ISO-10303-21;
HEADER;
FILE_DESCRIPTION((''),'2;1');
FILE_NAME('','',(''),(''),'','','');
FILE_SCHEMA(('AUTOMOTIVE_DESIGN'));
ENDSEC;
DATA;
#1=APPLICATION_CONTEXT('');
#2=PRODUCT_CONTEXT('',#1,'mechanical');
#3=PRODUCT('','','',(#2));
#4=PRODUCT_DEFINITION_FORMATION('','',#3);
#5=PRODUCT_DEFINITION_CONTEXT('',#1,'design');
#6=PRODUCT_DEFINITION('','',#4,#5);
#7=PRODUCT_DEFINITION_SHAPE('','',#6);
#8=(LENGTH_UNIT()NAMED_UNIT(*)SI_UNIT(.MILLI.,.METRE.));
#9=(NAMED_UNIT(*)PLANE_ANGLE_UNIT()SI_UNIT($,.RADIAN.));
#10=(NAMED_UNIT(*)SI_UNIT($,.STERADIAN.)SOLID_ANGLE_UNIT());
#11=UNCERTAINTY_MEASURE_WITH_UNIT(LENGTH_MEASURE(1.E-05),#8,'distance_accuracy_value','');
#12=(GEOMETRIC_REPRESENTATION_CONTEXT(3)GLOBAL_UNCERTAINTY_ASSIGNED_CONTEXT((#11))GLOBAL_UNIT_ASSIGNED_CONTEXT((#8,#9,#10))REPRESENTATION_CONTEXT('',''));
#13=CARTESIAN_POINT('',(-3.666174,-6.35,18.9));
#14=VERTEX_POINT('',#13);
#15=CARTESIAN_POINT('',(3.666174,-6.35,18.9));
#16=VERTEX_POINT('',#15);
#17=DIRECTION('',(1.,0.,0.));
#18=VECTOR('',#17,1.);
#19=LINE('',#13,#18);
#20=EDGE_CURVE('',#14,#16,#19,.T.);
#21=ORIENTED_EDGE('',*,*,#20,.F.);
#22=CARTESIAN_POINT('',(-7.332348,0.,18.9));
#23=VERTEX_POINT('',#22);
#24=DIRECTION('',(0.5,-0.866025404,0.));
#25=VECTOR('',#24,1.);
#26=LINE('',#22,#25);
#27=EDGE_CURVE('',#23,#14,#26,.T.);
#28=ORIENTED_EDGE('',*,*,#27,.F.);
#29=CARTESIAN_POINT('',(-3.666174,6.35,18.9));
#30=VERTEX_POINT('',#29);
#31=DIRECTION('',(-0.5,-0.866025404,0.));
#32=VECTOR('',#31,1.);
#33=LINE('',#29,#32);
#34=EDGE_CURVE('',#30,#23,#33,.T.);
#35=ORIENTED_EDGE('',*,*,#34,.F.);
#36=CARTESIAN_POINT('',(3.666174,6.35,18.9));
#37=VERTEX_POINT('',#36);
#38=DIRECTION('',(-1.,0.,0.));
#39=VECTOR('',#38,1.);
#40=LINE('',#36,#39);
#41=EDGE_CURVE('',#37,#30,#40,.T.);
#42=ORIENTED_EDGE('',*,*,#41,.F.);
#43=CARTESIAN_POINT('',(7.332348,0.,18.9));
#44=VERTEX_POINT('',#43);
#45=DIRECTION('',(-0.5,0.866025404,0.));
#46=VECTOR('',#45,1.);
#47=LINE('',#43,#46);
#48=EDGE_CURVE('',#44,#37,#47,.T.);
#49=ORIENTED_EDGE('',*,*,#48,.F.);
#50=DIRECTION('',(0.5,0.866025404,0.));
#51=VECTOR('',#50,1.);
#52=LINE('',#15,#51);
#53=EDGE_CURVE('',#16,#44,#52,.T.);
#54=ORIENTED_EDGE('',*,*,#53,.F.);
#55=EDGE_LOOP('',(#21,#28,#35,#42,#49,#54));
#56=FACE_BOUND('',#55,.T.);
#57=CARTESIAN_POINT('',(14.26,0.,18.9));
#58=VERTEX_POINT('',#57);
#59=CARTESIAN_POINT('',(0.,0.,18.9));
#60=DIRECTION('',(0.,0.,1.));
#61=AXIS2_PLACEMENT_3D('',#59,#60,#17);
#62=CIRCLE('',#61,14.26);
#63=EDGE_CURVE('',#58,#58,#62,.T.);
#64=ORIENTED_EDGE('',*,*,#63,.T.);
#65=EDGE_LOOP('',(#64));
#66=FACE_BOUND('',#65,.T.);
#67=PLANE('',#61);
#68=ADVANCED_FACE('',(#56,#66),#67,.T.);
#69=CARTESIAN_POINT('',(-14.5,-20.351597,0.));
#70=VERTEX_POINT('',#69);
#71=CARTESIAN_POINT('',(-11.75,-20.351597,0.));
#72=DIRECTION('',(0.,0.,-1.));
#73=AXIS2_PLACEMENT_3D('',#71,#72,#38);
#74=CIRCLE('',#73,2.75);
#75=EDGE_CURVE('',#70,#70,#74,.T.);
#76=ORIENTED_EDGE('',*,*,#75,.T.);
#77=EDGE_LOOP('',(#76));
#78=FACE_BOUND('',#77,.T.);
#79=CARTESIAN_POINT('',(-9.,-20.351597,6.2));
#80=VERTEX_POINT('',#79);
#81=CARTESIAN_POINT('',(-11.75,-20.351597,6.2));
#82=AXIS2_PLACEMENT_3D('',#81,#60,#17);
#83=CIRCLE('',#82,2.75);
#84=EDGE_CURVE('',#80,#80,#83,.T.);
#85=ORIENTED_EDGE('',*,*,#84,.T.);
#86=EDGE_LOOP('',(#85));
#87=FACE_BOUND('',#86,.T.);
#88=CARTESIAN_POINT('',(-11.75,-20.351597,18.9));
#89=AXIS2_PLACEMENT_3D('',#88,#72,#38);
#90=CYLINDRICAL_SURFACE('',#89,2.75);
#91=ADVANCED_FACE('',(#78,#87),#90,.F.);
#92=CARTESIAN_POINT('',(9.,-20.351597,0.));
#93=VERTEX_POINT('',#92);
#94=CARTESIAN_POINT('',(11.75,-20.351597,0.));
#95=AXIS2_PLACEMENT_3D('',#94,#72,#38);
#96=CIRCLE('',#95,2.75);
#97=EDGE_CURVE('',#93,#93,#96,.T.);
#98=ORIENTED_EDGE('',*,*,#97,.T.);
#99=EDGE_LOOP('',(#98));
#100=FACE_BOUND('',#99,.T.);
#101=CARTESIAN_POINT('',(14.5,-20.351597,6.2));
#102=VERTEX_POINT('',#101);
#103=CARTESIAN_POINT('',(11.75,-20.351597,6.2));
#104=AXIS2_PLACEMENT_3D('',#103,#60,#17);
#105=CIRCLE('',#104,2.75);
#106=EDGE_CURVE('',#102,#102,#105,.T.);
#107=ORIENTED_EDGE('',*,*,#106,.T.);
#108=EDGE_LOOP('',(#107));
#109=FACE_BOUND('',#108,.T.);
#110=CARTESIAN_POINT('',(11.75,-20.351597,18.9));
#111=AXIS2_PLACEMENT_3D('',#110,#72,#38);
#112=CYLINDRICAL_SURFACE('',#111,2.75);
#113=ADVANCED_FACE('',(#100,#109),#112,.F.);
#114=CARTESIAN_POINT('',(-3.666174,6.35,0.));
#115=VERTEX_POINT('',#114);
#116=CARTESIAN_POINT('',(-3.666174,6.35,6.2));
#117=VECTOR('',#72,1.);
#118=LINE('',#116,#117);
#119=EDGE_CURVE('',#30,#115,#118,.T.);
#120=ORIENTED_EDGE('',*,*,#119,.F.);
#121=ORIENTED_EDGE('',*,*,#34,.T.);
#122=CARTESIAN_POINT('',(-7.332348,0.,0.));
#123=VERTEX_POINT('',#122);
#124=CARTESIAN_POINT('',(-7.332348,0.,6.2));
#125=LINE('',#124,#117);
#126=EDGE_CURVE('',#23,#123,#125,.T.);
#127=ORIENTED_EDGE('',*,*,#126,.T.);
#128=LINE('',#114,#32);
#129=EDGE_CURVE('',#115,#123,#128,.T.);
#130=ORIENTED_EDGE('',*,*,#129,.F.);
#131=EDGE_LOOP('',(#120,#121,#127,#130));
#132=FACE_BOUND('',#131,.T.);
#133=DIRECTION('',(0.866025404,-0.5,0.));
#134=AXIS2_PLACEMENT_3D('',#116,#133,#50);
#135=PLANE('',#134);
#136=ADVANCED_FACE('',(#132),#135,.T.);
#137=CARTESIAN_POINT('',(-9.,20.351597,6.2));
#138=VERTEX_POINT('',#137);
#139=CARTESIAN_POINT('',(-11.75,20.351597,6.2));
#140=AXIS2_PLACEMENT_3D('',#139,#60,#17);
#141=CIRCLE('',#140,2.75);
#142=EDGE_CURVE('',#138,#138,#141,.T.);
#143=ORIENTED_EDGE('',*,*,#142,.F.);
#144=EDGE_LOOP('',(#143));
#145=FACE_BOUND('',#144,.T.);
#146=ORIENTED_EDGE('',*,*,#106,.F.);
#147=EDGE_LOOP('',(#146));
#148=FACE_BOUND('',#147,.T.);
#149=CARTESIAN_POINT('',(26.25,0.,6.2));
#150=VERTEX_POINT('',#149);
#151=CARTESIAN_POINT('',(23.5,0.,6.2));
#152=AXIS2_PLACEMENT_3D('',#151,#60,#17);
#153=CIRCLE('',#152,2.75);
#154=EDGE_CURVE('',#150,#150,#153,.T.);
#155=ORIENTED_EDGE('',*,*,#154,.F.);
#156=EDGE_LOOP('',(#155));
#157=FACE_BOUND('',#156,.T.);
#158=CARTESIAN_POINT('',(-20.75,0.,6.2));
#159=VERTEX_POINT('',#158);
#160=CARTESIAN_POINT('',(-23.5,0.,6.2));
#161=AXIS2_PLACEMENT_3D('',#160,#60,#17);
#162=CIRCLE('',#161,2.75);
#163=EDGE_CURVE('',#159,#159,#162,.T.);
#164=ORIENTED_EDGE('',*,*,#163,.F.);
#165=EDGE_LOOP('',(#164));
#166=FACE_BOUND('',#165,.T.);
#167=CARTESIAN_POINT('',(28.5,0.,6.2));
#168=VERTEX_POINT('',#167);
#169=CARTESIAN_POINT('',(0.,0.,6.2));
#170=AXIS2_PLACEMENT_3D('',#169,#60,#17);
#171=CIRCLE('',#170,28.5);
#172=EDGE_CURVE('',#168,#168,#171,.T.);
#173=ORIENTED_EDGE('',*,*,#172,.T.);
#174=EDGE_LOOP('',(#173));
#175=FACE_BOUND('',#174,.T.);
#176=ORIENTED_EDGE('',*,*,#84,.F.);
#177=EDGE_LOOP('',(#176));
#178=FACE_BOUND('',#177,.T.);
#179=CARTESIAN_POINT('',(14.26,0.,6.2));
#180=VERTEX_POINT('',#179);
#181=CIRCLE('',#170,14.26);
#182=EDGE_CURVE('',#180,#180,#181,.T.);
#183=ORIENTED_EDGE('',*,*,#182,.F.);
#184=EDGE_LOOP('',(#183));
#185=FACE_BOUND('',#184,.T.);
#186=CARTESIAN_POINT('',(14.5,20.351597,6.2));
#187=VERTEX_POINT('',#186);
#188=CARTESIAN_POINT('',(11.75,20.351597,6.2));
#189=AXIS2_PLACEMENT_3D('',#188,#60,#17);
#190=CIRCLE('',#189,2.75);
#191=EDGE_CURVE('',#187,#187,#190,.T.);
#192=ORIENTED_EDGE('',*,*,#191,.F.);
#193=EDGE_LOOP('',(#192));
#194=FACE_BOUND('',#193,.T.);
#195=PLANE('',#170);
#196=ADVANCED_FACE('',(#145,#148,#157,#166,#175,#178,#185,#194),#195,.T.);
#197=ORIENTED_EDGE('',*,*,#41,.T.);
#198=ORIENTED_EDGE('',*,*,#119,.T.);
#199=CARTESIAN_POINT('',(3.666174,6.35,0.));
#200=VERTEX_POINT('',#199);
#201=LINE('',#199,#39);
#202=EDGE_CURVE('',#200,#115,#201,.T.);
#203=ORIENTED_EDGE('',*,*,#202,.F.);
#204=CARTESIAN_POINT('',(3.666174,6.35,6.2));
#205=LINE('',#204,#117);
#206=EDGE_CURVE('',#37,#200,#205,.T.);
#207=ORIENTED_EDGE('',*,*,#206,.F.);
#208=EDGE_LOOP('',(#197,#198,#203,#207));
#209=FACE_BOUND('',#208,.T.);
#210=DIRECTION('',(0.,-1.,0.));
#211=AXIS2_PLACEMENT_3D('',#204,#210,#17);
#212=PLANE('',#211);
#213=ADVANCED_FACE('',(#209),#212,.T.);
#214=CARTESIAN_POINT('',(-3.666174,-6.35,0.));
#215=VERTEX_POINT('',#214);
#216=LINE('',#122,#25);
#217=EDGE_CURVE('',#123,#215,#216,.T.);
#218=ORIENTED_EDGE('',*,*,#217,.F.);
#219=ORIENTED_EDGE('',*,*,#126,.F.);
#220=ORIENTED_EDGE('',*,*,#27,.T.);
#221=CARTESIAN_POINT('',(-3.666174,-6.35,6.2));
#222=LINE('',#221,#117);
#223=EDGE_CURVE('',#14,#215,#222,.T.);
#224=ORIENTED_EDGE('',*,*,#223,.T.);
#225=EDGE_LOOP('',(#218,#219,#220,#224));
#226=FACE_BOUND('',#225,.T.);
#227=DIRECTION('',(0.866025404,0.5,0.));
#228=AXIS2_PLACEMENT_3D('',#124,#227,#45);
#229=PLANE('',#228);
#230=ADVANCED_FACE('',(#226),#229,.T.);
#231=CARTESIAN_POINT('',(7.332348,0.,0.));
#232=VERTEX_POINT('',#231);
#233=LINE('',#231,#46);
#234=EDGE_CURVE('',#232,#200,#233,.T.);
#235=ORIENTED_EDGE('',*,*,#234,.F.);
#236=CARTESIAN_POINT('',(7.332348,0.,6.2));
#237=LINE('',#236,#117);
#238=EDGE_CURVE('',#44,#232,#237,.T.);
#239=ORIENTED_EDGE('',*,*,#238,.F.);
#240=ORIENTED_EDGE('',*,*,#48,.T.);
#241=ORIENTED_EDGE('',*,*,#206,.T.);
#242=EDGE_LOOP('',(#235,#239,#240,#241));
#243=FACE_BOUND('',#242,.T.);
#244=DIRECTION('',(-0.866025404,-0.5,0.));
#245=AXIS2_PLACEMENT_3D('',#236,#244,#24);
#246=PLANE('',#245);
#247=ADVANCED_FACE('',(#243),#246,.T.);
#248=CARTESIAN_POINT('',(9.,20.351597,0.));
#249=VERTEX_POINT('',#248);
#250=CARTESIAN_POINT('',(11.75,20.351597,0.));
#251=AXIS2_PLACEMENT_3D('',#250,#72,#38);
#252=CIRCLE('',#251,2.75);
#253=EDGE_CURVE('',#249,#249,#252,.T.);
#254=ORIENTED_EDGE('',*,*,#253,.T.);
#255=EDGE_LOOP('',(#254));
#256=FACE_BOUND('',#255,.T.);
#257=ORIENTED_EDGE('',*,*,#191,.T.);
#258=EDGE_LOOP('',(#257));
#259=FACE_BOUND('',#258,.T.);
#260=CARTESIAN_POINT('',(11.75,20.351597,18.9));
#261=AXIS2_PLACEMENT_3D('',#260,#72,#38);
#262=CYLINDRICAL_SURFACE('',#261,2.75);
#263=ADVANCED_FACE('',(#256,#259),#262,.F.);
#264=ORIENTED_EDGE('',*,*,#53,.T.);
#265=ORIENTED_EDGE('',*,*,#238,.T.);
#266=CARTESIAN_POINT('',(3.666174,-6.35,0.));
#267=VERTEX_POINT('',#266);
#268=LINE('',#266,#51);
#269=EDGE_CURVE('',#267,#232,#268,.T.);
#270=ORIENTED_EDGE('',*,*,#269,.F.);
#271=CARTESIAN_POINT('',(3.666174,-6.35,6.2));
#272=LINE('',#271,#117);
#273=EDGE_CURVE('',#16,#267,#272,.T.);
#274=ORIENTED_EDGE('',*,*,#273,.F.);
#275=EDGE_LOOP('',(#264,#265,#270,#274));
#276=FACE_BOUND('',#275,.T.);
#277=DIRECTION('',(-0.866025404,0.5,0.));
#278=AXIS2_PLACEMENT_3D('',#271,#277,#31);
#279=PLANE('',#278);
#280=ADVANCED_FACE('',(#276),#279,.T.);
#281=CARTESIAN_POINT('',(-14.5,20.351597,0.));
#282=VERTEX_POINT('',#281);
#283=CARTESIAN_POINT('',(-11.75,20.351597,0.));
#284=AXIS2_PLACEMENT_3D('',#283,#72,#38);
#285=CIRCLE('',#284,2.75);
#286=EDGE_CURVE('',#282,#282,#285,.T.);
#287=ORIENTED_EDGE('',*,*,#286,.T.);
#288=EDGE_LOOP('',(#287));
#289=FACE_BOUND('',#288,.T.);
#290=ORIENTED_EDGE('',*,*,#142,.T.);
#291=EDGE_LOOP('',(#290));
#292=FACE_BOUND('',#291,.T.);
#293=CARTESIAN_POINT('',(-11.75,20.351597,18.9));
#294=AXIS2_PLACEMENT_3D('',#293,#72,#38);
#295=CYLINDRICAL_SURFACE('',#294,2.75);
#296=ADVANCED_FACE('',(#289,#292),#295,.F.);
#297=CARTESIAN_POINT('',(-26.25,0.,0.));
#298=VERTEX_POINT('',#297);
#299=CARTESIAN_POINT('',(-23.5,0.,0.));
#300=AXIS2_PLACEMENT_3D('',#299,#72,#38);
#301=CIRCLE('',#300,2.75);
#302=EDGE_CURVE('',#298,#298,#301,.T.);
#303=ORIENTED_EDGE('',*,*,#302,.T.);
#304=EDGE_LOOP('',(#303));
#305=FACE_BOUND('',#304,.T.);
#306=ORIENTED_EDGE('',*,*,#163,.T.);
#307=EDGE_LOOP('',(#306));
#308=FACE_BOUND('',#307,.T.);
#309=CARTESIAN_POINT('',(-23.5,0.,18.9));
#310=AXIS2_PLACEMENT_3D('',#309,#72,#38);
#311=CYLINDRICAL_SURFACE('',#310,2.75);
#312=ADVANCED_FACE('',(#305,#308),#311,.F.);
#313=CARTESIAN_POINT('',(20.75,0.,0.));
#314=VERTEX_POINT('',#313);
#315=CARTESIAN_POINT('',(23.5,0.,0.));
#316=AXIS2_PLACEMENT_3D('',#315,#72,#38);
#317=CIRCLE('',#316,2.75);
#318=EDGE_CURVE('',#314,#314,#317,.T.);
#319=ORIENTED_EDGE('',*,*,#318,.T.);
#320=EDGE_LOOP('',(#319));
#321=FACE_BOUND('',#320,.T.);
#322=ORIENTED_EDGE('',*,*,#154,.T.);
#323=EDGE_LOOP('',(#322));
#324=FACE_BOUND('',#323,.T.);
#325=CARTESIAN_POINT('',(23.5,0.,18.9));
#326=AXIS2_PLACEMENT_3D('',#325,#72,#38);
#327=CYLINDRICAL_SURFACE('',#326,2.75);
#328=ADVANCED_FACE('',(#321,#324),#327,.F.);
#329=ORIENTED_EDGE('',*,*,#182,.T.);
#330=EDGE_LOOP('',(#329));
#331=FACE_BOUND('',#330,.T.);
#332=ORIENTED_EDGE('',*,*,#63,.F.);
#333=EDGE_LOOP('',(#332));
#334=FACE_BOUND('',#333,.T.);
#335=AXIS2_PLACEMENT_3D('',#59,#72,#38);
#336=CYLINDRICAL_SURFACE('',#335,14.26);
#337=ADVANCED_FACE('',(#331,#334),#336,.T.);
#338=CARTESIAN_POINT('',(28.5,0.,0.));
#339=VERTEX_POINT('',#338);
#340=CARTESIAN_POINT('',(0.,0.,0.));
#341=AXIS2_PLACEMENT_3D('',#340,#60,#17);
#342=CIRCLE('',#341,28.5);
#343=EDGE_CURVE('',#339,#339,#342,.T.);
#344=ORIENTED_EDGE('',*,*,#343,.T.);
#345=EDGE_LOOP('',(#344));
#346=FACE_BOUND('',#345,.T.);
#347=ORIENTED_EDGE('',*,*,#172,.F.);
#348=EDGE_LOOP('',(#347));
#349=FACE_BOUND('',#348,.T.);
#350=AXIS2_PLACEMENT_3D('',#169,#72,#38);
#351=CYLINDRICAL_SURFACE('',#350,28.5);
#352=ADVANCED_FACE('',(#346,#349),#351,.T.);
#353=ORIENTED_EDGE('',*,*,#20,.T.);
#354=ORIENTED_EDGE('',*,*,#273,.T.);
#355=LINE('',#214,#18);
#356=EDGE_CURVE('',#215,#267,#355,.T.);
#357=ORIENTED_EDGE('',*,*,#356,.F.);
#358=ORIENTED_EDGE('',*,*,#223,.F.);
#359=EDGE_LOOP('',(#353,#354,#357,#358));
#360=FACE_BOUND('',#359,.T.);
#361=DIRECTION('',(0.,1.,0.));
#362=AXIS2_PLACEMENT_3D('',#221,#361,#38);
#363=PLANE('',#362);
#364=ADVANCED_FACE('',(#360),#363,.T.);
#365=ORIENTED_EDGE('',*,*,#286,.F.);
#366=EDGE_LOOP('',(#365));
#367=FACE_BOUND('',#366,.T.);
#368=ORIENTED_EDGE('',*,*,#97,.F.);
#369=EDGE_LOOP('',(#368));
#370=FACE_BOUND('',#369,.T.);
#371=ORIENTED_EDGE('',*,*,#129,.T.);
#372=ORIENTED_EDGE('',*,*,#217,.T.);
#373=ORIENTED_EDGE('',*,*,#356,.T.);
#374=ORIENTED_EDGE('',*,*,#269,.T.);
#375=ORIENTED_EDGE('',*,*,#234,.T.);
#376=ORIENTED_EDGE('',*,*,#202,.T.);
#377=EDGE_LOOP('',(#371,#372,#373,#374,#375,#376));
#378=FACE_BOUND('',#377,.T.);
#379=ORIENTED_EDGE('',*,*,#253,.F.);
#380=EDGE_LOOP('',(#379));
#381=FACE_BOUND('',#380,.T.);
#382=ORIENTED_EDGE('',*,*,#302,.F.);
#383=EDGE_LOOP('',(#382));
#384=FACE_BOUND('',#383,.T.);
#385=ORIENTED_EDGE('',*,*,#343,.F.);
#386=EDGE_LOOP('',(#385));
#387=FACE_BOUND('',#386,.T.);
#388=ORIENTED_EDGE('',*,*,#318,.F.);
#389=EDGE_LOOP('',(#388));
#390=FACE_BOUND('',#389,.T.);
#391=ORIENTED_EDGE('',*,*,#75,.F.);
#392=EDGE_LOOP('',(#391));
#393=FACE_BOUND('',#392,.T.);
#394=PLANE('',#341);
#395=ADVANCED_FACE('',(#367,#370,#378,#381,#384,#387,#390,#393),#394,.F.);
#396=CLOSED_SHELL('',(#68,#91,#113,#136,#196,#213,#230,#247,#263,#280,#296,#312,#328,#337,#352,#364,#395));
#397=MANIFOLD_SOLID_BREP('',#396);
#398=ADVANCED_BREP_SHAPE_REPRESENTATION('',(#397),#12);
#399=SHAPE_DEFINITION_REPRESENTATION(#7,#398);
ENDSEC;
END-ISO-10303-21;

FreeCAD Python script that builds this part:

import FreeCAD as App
import Part
import Sketcher
Q = App.Units.Quantity

doc = App.newDocument("Part")
body = doc.addObject("PartDesign::Body", "Body")

# Sketch on XY plane
sketch1 = body.newObject("Sketcher::SketchObject", "Sketch")
sketch1.AttachmentSupport = (doc.getObject("XY_Plane"), [""])
sketch1.MapMode = "FlatFace"
sketch1.addGeometry([
    Part.Circle(App.Vector(0, 0, 0), App.Vector(0, 0, 1), 28),  # 0
    Part.LineSegment(App.Vector(4, 6, 0), App.Vector(7, 0, 0)),  # 1
    Part.LineSegment(App.Vector(7, 0, 0), App.Vector(4, -6, 0)),  # 2
    Part.LineSegment(App.Vector(4, -6, 0), App.Vector(-4, -6, 0)),  # 3
    Part.LineSegment(App.Vector(-4, -6, 0), App.Vector(-7, 0, 0)),  # 4
    Part.LineSegment(App.Vector(-7, 0, 0), App.Vector(-4, 6, 0)),  # 5
    Part.LineSegment(App.Vector(-4, 6, 0), App.Vector(4, 6, 0)),  # 6
], False)
sketch1.addConstraint([
    Sketcher.Constraint("Coincident", 1, 2, 2, 1),
    Sketcher.Constraint("Coincident", 2, 2, 3, 1),
    Sketcher.Constraint("Coincident", 3, 2, 4, 1),
    Sketcher.Constraint("Coincident", 4, 2, 5, 1),
    Sketcher.Constraint("Coincident", 5, 2, 6, 1),
    Sketcher.Constraint("Coincident", 6, 2, 1, 1),
    Sketcher.Constraint("Horizontal", 3),
    Sketcher.Constraint("Horizontal", 6),
    Sketcher.Constraint("Coincident", 0, 3, -1, 1),
    Sketcher.Constraint("Symmetric", 1, 2, 4, 2, -1, 1),
    Sketcher.Constraint("Symmetric", 2, 2, 5, 2, -1, 1),
    Sketcher.Constraint("PointOnObject", 1, 2, -1),
    Sketcher.Constraint("Parallel", 1, 4),
    Sketcher.Constraint("Vertical", 3, 2, 5, 2),
    Sketcher.Constraint("Diameter", 0, Q("57 mm")),
    Sketcher.Constraint("Angle", 1, Q("-60 deg")),
    Sketcher.Constraint("DistanceY", 3, 2, 5, 2, Q("12.7 mm")),
    Sketcher.Constraint("DistanceX", 3, 2, 3, 1, Q("7.332348 mm")),
])
pad1 = body.newObject("PartDesign::Pad", "Pad")
pad1.Profile = sketch1
pad1.Length = 6.2

# Sketch on XY plane
sketch2 = body.newObject("Sketcher::SketchObject", "Sketch001")
sketch2.AttachmentSupport = (doc.getObject("XY_Plane"), [""])
sketch2.MapMode = "FlatFace"
sketch2.AttachmentOffset = App.Placement(App.Vector(0, 0, 6.2), App.Rotation())
sketch2.addGeometry([
    Part.Circle(App.Vector(0, 0, 0), App.Vector(0, 0, 1), 14),  # 0
    Part.LineSegment(App.Vector(7, 0, 0), App.Vector(4, -6, 0)),  # 1
    Part.LineSegment(App.Vector(4, -6, 0), App.Vector(-4, -6, 0)),  # 2
    Part.LineSegment(App.Vector(-4, -6, 0), App.Vector(-7, 0, 0)),  # 3
    Part.LineSegment(App.Vector(-7, 0, 0), App.Vector(-4, 6, 0)),  # 4
    Part.LineSegment(App.Vector(-4, 6, 0), App.Vector(4, 6, 0)),  # 5
    Part.LineSegment(App.Vector(4, 6, 0), App.Vector(7, 0, 0)),  # 6
], False)
sketch2.addConstraint([
    Sketcher.Constraint("Coincident", 1, 2, 2, 1),
    Sketcher.Constraint("Coincident", 2, 2, 3, 1),
    Sketcher.Constraint("Coincident", 3, 2, 4, 1),
    Sketcher.Constraint("Coincident", 4, 2, 5, 1),
    Sketcher.Constraint("Coincident", 5, 2, 6, 1),
    Sketcher.Constraint("Coincident", 6, 2, 1, 1),
    Sketcher.Constraint("Horizontal", 2),
    Sketcher.Constraint("Horizontal", 5),
    Sketcher.Constraint("Coincident", 0, 3, -1, 1),
    Sketcher.Constraint("Symmetric", 1, 2, 4, 2, -1, 1),
    Sketcher.Constraint("Symmetric", 3, 2, 6, 2, -1, 1),
    Sketcher.Constraint("PointOnObject", 3, 2, -1),
    Sketcher.Constraint("Parallel", 3, 6),
    Sketcher.Constraint("Vertical", 2, 2, 4, 2),
    Sketcher.Constraint("Diameter", 0, Q("28.52 mm")),
    Sketcher.Constraint("Angle", 1, Q("-120 deg")),
    Sketcher.Constraint("DistanceY", 2, 2, 4, 2, Q("12.7 mm")),
    Sketcher.Constraint("DistanceX", 2, 2, 2, 1, Q("7.332348 mm")),
])
pad2 = body.newObject("PartDesign::Pad", "Pad001")
pad2.Profile = sketch2
pad2.Length = 12.7

# Sketch on XY plane
sketch3 = body.newObject("Sketcher::SketchObject", "Sketch002")
sketch3.AttachmentSupport = (doc.getObject("XY_Plane"), [""])
sketch3.MapMode = "FlatFace"
sketch3.addGeometry([
    Part.Circle(App.Vector(11.8, 20.4, 0), App.Vector(0, 0, 1), 2.8),  # 0
    Part.Circle(App.Vector(-11.8, 20.4, 0), App.Vector(0, 0, 1), 2.8),  # 1
    Part.Circle(App.Vector(-23.5, 0, 0), App.Vector(0, 0, 1), 2.8),  # 2
    Part.Circle(App.Vector(-11.8, -20.4, 0), App.Vector(0, 0, 1), 2.8),  # 3
    Part.Circle(App.Vector(11.8, -20.4, 0), App.Vector(0, 0, 1), 2.8),  # 4
    Part.Circle(App.Vector(23.5, 0, 0), App.Vector(0, 0, 1), 2.8),  # 5
], False)
sketch3.addConstraint([
    Sketcher.Constraint("Equal", 0, 1),
    Sketcher.Constraint("Equal", 1, 2),
    Sketcher.Constraint("Equal", 2, 3),
    Sketcher.Constraint("Equal", 3, 4),
    Sketcher.Constraint("Equal", 4, 5),
    Sketcher.Constraint("Symmetric", 0, 3, 3, 3, -1, 1),
    Sketcher.Constraint("Symmetric", 1, 3, 4, 3, -1, 1),
    Sketcher.Constraint("Symmetric", 2, 3, 5, 3, -1, 1),
    Sketcher.Constraint("Symmetric", 0, 3, 1, 3, -2),
    Sketcher.Constraint("PointOnObject", 2, 3, -1),
    Sketcher.Constraint("Diameter", 0, Q("5.5 mm")),
    Sketcher.Constraint("DistanceX", 2, 3, 5, 3, Q("47 mm")),
    Sketcher.Constraint("DistanceX", 1, 3, 0, 3, Q("23.5 mm")),
    Sketcher.Constraint("DistanceY", -1, 1, 0, 3, Q("20.351597 mm")),
])
pocket1 = body.newObject("PartDesign::Pocket", "Pocket")
pocket1.Profile = sketch3
pocket1.Type = "ThroughAll"
pocket1.Reversed = True

doc.recompute()
